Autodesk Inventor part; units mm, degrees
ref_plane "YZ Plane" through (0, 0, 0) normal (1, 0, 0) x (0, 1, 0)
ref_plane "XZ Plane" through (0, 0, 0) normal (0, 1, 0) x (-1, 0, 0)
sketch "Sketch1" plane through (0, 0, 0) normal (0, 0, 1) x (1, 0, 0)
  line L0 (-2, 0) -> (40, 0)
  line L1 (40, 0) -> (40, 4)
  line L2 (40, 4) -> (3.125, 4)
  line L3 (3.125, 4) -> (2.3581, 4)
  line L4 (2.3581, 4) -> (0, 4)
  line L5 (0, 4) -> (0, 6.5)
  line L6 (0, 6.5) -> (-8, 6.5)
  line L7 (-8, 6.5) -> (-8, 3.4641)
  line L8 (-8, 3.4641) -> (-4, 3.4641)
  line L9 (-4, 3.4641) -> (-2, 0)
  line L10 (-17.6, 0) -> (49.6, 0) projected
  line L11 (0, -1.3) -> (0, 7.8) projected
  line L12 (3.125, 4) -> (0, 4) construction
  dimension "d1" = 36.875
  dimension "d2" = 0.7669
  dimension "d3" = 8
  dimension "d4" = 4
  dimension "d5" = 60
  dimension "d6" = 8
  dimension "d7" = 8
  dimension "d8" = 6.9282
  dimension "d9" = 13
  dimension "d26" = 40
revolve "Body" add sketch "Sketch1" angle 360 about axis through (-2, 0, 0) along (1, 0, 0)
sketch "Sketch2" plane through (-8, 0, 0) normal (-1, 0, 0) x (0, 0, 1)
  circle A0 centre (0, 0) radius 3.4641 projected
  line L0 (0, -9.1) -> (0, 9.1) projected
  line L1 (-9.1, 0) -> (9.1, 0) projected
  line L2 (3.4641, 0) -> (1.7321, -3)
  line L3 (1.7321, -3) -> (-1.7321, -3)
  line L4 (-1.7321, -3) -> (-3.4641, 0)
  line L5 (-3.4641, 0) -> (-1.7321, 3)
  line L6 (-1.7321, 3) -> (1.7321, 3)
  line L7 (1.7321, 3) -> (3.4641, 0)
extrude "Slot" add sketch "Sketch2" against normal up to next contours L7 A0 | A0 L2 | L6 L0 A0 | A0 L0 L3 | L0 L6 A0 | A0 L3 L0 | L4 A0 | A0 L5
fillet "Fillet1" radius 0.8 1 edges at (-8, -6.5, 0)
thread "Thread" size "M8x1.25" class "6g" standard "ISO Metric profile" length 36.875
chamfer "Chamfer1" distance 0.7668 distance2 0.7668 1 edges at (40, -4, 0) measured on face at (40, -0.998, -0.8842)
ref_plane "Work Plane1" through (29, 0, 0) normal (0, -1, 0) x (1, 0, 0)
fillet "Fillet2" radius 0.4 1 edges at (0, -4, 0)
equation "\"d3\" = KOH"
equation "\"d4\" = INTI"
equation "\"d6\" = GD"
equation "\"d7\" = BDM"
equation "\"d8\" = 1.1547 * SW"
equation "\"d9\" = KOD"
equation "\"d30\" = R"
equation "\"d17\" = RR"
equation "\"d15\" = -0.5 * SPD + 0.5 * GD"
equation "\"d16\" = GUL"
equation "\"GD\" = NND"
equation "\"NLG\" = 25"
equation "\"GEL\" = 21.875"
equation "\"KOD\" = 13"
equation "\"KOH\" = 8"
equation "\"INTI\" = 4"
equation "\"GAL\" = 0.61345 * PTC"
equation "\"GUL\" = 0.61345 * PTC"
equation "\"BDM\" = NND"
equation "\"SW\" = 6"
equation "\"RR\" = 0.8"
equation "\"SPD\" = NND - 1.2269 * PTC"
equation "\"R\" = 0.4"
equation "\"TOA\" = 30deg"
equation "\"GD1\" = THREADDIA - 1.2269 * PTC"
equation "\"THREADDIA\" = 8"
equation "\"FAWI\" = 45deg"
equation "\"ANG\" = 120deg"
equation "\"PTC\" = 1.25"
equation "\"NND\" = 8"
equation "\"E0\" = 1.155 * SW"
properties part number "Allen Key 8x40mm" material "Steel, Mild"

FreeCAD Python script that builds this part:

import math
import FreeCAD as App
import Part
import Sketcher

V = App.Vector
Q = App.Units.Quantity


def edges_at(feature, points):
    """Names of the edges that pass closest to the given points."""
    edges = feature.Shape.Edges
    near = lambda p: min(range(len(edges)), key=lambda i: edges[i].distToShape(Part.Vertex(*p))[0])
    return sorted({f"Edge{near(p) + 1}" for p in points})

doc = App.newDocument("Part")
body = doc.addObject("PartDesign::Body", "Body")

sketch1 = body.newObject("Sketcher::SketchObject", "Sketch")
sketch1.AttachmentSupport = (doc.getObject("XY_Plane"), [""])
sketch1.MapMode = "FlatFace"
sketch1.addGeometry([
    Part.LineSegment(V(-4, 3.5, 0), V(-2, 0, 0)),
    Part.LineSegment(V(-2, 0, 0), V(40, 0, 0)),
    Part.LineSegment(V(40, 0, 0), V(40, 4, 0)),
    Part.LineSegment(V(40, 4, 0), V(0, 4, 0)),
    Part.LineSegment(V(0, 4, 0), V(0, 6.5, 0)),
    Part.LineSegment(V(0, 6.5, 0), V(-8, 6.5, 0)),
    Part.LineSegment(V(-8, 6.5, 0), V(-8, 3.5, 0)),
    Part.LineSegment(V(-8, 3.5, 0), V(-4, 3.5, 0)),
], False)
sketch1.addConstraint([
    Sketcher.Constraint("Coincident", 0, 2, 1, 1),
    Sketcher.Constraint("Coincident", 1, 2, 2, 1),
    Sketcher.Constraint("Coincident", 2, 2, 3, 1),
    Sketcher.Constraint("Coincident", 3, 2, 4, 1),
    Sketcher.Constraint("Coincident", 4, 2, 5, 1),
    Sketcher.Constraint("Coincident", 5, 2, 6, 1),
    Sketcher.Constraint("Coincident", 6, 2, 7, 1),
    Sketcher.Constraint("Coincident", 7, 2, 0, 1),
    Sketcher.Constraint("Horizontal", 1),
    Sketcher.Constraint("Vertical", 2),
    Sketcher.Constraint("Horizontal", 3),
    Sketcher.Constraint("Vertical", 4),
    Sketcher.Constraint("Horizontal", 5),
    Sketcher.Constraint("Vertical", 6),
    Sketcher.Constraint("Horizontal", 7),
    Sketcher.Constraint("PointOnObject", 0, 2, -1),
    Sketcher.Constraint("PointOnObject", 3, 2, -2),
    Sketcher.Constraint("Equal", 7, 2),
    Sketcher.Constraint("DistanceX", 3, 2, 3, 1, 40.0),
    Sketcher.Constraint("DistanceX", 5, 2, 5, 1, 8.0),
    Sketcher.Constraint("DistanceX", 7, 1, 7, 2, 4.0),
    Sketcher.Constraint("Angle", 0, Q("-60 deg")),
    Sketcher.Constraint("Distance", 0, 4.0),
    Sketcher.Constraint("DistanceY", 4, 1, 4, 2, 2.5),
])
revolution = body.newObject("PartDesign::Revolution", "Revolution")
revolution.Profile = sketch1
revolution.ReferenceAxis = (sketch1, ["H_Axis"])
revolution.Angle = 360

sketch2 = body.newObject("Sketcher::SketchObject", "Sketch001")
sketch2.AttachmentSupport = (doc.getObject("YZ_Plane"), [""])
sketch2.MapMode = "FlatFace"
sketch2.AttachmentOffset = App.Placement(V(0, 0, -8), App.Rotation())
sketch2.addGeometry([
    Part.LineSegment(V(3, 1.7, 0), V(0, 3.5, 0)),
    Part.ArcOfCircle(Part.Circle(V(0, 0, 0), V(0, 0, 1), 3.5), math.radians(30), math.radians(90)),
    Part.ArcOfCircle(Part.Circle(V(0, 0, 0), V(0, 0, 1), 3.5), math.radians(90), math.radians(150)),
    Part.LineSegment(V(0, 3.5, 0), V(-3, 1.7, 0)),
    Part.ArcOfCircle(Part.Circle(V(0, 0, 0), V(0, 0, 1), 3.5), math.radians(-30), math.radians(30)),
    Part.LineSegment(V(3, 1.7, 0), V(3, -1.7, 0)),
    Part.LineSegment(V(-3, 1.7, 0), V(-3, -1.7, 0)),
    Part.ArcOfCircle(Part.Circle(V(0, 0, 0), V(0, 0, 1), 3.5), math.radians(150), math.radians(210)),
    Part.LineSegment(V(-3, -1.7, 0), V(0, -3.5, 0)),
    Part.ArcOfCircle(Part.Circle(V(0, 0, 0), V(0, 0, 1), 3.5), math.radians(-150), math.radians(-90)),
    Part.ArcOfCircle(Part.Circle(V(0, 0, 0), V(0, 0, 1), 3.5), math.radians(-90), math.radians(-30)),
    Part.LineSegment(V(0, -3.5, 0), V(3, -1.7, 0)),
], False)
sketch2.addConstraint([
    Sketcher.Constraint("Coincident", 0, 1, 1, 1),
    Sketcher.Constraint("Coincident", 1, 2, 0, 2),
    Sketcher.Constraint("Coincident", 2, 1, 3, 1),
    Sketcher.Constraint("Coincident", 3, 2, 2, 2),
    Sketcher.Constraint("Coincident", 4, 1, 5, 2),
    Sketcher.Constraint("Coincident", 5, 1, 4, 2),
    Sketcher.Constraint("Coincident", 6, 1, 7, 1),
    Sketcher.Constraint("Coincident", 7, 2, 6, 2),
    Sketcher.Constraint("Coincident", 8, 1, 9, 1),
    Sketcher.Constraint("Coincident", 9, 2, 8, 2),
    Sketcher.Constraint("Coincident", 10, 1, 11, 1),
    Sketcher.Constraint("Coincident", 11, 2, 10, 2),
    Sketcher.Constraint("Vertical", 5),
    Sketcher.Constraint("Vertical", 6),
    Sketcher.Constraint("Coincident", 1, 3, -1, 1),
    Sketcher.Constraint("Coincident", 2, 3, -1, 1),
    Sketcher.Constraint("Coincident", 4, 3, -1, 1),
    Sketcher.Constraint("Coincident", 7, 3, -1, 1),
    Sketcher.Constraint("Coincident", 9, 3, -1, 1),
    Sketcher.Constraint("Coincident", 10, 3, -1, 1),
    Sketcher.Constraint("Coincident", 2, 1, 1, 2),
    Sketcher.Constraint("Coincident", 5, 1, 0, 1),
    Sketcher.Constraint("Coincident", 6, 1, 3, 2),
    Sketcher.Constraint("Coincident", 8, 1, 7, 2),
    Sketcher.Constraint("Coincident", 10, 1, 9, 2),
    Sketcher.Constraint("PointOnObject", 1, 2, -2),
    Sketcher.Constraint("PointOnObject", 9, 2, -2),
    Sketcher.Constraint("Parallel", 0, 8),
    Sketcher.Constraint("Parallel", 3, 11),
    Sketcher.Constraint("Angle", 0, Q("150.0007 deg")),
    Sketcher.Constraint("DistanceX", -1, 1, 0, 1, 3.0),
])
pad1 = body.newObject("PartDesign::Pad", "Pad")
pad1.Profile = sketch2
pad1.Length = 4.2679
doc.recompute()

fillet = body.newObject("PartDesign::Fillet", "Fillet")
fillet.Base = (pad1, edges_at(pad1, [(-8, -6.5, 0)]))
fillet.Radius = 0.8
doc.recompute()

chamfer = body.newObject("PartDesign::Chamfer", "Chamfer")
chamfer.Base = (fillet, edges_at(fillet, [(40, -4, 0)]))
chamfer.ChamferType = "Two distances"
chamfer.Size = 0.7668
chamfer.Size2 = 0.7668
doc.recompute()

fillet2 = body.newObject("PartDesign::Fillet", "Fillet001")
fillet2.Base = (chamfer, edges_at(chamfer, [(0, -4, 0)]))
fillet2.Radius = 0.4

doc.recompute()
